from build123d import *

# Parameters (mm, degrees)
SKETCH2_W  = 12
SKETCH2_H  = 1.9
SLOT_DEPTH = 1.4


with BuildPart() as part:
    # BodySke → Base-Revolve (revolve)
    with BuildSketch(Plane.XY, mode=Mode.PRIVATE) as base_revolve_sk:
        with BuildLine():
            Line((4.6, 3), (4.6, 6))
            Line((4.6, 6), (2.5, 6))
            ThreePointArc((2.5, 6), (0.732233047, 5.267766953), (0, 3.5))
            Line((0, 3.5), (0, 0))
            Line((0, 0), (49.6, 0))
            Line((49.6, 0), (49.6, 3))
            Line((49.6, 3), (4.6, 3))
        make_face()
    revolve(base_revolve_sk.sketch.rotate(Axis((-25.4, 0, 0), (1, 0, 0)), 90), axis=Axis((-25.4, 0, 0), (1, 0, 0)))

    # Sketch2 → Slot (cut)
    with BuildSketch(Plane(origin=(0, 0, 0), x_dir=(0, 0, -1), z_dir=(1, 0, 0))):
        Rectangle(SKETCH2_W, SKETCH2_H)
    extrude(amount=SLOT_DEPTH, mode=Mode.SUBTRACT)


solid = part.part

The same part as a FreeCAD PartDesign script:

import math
import FreeCAD as App
import Part
import Sketcher
from FreeCAD import Vector

doc = App.newDocument("Part")
body = doc.addObject("PartDesign::Body", "Body")

# Sketch on XY plane
sketch1 = body.newObject("Sketcher::SketchObject", "Sketch")
sketch1.AttachmentSupport = (doc.getObject("XY_Plane"), [""])
sketch1.MapMode = "FlatFace"
sketch1.addGeometry([
    Part.LineSegment(Vector(4.6, 3, 0), Vector(4.6, 6, 0)),  # 0
    Part.LineSegment(Vector(4.6, 6, 0), Vector(2.5, 6, 0)),  # 1
    Part.ArcOfCircle(Part.Circle(Vector(2.5, 3.5, 0), Vector(0, 0, 1), 2.5), math.radians(90), math.radians(180)),  # 2
    Part.LineSegment(Vector(0, 3.5, 0), Vector(0, 0, 0)),  # 3
    Part.LineSegment(Vector(0, 0, 0), Vector(49.6, 0, 0)),  # 4
    Part.LineSegment(Vector(49.6, 0, 0), Vector(49.6, 3, 0)),  # 5
    Part.LineSegment(Vector(49.6, 3, 0), Vector(4.6, 3, 0)),  # 6
], False)
sketch1.addConstraint([
    Sketcher.Constraint("Coincident", 0, 2, 1, 1),
    Sketcher.Constraint("Tangent", 1, 2, 2, 1),
    Sketcher.Constraint("Tangent", 2, 2, 3, 1),
    Sketcher.Constraint("Coincident", 3, 2, 4, 1),
    Sketcher.Constraint("Coincident", 4, 2, 5, 1),
    Sketcher.Constraint("Coincident", 5, 2, 6, 1),
    Sketcher.Constraint("Coincident", 6, 2, 0, 1),
    Sketcher.Constraint("Vertical", 0),
    Sketcher.Constraint("Horizontal", 1),
    Sketcher.Constraint("Vertical", 3),
    Sketcher.Constraint("Horizontal", 4),
    Sketcher.Constraint("Vertical", 5),
    Sketcher.Constraint("Horizontal", 6),
    Sketcher.Constraint("Coincident", 3, 2, -1, 1),
    Sketcher.Constraint("Equal", 0, 5),
    Sketcher.Constraint("Radius", 2, 2.5),
    Sketcher.Constraint("DistanceX", 6, 2, 6, 1, 45.0),
    Sketcher.Constraint("DistanceY", 0, 1, 0, 2, 3.0),
    Sketcher.Constraint("DistanceX", 1, 2, 1, 1, 2.1),
])
revolution = body.newObject("PartDesign::Revolution", "Revolution")
revolution.Profile = sketch1
revolution.ReferenceAxis = (sketch1, ["H_Axis"])
revolution.Angle = 360

# Sketch on YZ plane
sketch2 = body.newObject("Sketcher::SketchObject", "Sketch001")
sketch2.AttachmentSupport = (doc.getObject("YZ_Plane"), [""])
sketch2.MapMode = "FlatFace"
sketch2.addGeometry([
    Part.LineSegment(Vector(0.95, 6, 0), Vector(-0.95, 6, 0)),
    Part.LineSegment(Vector(-0.95, 6, 0), Vector(-0.95, -6, 0)),
    Part.LineSegment(Vector(-0.95, -6, 0), Vector(0.95, -6, 0)),
    Part.LineSegment(Vector(0.95, -6, 0), Vector(0.95, 6, 0)),
], False)
sketch2.addConstraint([
    Sketcher.Constraint("Coincident", 0, 2, 1, 1),
    Sketcher.Constraint("Coincident", 1, 2, 2, 1),
    Sketcher.Constraint("Coincident", 2, 2, 3, 1),
    Sketcher.Constraint("Coincident", 3, 2, 0, 1),
    Sketcher.Constraint("Horizontal", 0),
    Sketcher.Constraint("Vertical", 1),
    Sketcher.Constraint("Horizontal", 2),
    Sketcher.Constraint("Vertical", 3),
    Sketcher.Constraint("Symmetric", 0, 2, 2, 2, -1, 1),
    Sketcher.Constraint("DistanceY", 1, 2, 1, 1, 12.0),
    Sketcher.Constraint("DistanceX", 0, 2, 0, 1, 1.9),
])
pocket1 = body.newObject("PartDesign::Pocket", "Pocket")
pocket1.Profile = sketch2
pocket1.Length = 1.4
pocket1.Reversed = True

doc.recompute()
